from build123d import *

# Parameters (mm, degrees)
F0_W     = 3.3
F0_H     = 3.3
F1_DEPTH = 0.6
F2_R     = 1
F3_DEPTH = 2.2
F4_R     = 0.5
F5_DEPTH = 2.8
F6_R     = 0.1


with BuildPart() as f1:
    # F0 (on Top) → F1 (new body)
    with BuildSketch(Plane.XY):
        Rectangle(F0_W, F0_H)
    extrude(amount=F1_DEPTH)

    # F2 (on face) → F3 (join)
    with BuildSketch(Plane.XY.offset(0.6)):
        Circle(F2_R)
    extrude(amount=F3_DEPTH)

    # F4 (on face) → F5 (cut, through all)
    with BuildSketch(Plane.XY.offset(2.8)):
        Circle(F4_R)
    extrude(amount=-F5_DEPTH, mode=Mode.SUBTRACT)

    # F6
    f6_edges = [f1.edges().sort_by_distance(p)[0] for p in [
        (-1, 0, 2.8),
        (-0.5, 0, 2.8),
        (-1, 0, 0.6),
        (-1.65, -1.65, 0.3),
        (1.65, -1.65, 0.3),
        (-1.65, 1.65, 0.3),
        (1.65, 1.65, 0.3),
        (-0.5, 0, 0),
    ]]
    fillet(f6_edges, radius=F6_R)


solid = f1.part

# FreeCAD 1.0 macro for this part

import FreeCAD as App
import Part
import Sketcher

V = App.Vector
Q = App.Units.Quantity


def edges_at(feature, points):
    """Names of the edges that pass closest to the given points."""
    edges = feature.Shape.Edges
    near = lambda p: min(range(len(edges)), key=lambda i: edges[i].distToShape(Part.Vertex(*p))[0])
    return sorted({f"Edge{near(p) + 1}" for p in points})


def add_polygon(sketch, points):
    """Adds a closed chain of lines whose ends are joined by coincident constraints."""
    first, n = sketch.GeometryCount, len(points)
    for a, b in zip(points, points[1:] + points[:1]):
        sketch.addGeometry(Part.LineSegment(App.Vector(*a, 0), App.Vector(*b, 0)), False)
    for i in range(n):
        sketch.addConstraint(Sketcher.Constraint("Coincident", first + i, 2, first + (i + 1) % n, 1))

doc = App.newDocument("Part")
body = doc.addObject("PartDesign::Body", "Body")

sketch1 = body.newObject("Sketcher::SketchObject", "Sketch")
sketch1.AttachmentSupport = (doc.getObject("XY_Plane"), [""])
sketch1.MapMode = "FlatFace"
add_polygon(sketch1, [(-1.65, 1.65), (-1.65, -1.65), (1.65, -1.65), (1.65, 1.65)])
sketch1.addConstraint(Sketcher.Constraint("Vertical", 0))
sketch1.addConstraint(Sketcher.Constraint("Horizontal", 1))
sketch1.addConstraint(Sketcher.Constraint("Vertical", 2))
sketch1.addConstraint(Sketcher.Constraint("Horizontal", 3))
sketch1.addConstraint(Sketcher.Constraint("Symmetric", 0, 2, 2, 2, -1, 1))
sketch1.addConstraint(Sketcher.Constraint("Equal", 3, 0))
sketch1.addConstraint(Sketcher.Constraint("DistanceX", 1, 1, 1, 2, Q("3.3 mm")))
pad1 = body.newObject("PartDesign::Pad", "Pad")
pad1.Profile = sketch1
pad1.Length = 0.6

sketch2 = body.newObject("Sketcher::SketchObject", "Sketch001")
sketch2.AttachmentSupport = (doc.getObject("XY_Plane"), [""])
sketch2.MapMode = "FlatFace"
sketch2.AttachmentOffset = App.Placement(V(0, 0, 0.6), App.Rotation())
sketch2.addGeometry(Part.Circle(V(0, 0, 0), V(0, 0, 1), 1), False)
sketch2.addConstraint(Sketcher.Constraint("Coincident", 0, 3, -1, 1))
sketch2.addConstraint(Sketcher.Constraint("Diameter", 0, Q("2 mm")))
pad2 = body.newObject("PartDesign::Pad", "Pad001")
pad2.Profile = sketch2
pad2.Length = 2.2

sketch3 = body.newObject("Sketcher::SketchObject", "Sketch002")
sketch3.AttachmentSupport = (doc.getObject("XY_Plane"), [""])
sketch3.MapMode = "FlatFace"
sketch3.AttachmentOffset = App.Placement(V(0, 0, 2.8), App.Rotation())
sketch3.addGeometry(Part.Circle(V(0, 0, 0), V(0, 0, 1), 0.5), False)
sketch3.addConstraint(Sketcher.Constraint("Coincident", 0, 3, -1, 1))
sketch3.addConstraint(Sketcher.Constraint("Diameter", 0, Q("1 mm")))
pocket1 = body.newObject("PartDesign::Pocket", "Pocket")
pocket1.Profile = sketch3
pocket1.Type = "ThroughAll"
doc.recompute()

fillet = body.newObject("PartDesign::Fillet", "Fillet")
fillet.Base = (pocket1, edges_at(pocket1, [
    (-1, 0, 2.8),
    (-0.5, 0, 2.8),
    (-1, 0, 0.6),
    (-1.65, -1.65, 0.3),
    (1.65, -1.65, 0.3),
    (-1.65, 1.65, 0.3),
    (1.65, 1.65, 0.3),
    (-0.5, 0, 0),
]))
fillet.Radius = 0.1

doc.recompute()
